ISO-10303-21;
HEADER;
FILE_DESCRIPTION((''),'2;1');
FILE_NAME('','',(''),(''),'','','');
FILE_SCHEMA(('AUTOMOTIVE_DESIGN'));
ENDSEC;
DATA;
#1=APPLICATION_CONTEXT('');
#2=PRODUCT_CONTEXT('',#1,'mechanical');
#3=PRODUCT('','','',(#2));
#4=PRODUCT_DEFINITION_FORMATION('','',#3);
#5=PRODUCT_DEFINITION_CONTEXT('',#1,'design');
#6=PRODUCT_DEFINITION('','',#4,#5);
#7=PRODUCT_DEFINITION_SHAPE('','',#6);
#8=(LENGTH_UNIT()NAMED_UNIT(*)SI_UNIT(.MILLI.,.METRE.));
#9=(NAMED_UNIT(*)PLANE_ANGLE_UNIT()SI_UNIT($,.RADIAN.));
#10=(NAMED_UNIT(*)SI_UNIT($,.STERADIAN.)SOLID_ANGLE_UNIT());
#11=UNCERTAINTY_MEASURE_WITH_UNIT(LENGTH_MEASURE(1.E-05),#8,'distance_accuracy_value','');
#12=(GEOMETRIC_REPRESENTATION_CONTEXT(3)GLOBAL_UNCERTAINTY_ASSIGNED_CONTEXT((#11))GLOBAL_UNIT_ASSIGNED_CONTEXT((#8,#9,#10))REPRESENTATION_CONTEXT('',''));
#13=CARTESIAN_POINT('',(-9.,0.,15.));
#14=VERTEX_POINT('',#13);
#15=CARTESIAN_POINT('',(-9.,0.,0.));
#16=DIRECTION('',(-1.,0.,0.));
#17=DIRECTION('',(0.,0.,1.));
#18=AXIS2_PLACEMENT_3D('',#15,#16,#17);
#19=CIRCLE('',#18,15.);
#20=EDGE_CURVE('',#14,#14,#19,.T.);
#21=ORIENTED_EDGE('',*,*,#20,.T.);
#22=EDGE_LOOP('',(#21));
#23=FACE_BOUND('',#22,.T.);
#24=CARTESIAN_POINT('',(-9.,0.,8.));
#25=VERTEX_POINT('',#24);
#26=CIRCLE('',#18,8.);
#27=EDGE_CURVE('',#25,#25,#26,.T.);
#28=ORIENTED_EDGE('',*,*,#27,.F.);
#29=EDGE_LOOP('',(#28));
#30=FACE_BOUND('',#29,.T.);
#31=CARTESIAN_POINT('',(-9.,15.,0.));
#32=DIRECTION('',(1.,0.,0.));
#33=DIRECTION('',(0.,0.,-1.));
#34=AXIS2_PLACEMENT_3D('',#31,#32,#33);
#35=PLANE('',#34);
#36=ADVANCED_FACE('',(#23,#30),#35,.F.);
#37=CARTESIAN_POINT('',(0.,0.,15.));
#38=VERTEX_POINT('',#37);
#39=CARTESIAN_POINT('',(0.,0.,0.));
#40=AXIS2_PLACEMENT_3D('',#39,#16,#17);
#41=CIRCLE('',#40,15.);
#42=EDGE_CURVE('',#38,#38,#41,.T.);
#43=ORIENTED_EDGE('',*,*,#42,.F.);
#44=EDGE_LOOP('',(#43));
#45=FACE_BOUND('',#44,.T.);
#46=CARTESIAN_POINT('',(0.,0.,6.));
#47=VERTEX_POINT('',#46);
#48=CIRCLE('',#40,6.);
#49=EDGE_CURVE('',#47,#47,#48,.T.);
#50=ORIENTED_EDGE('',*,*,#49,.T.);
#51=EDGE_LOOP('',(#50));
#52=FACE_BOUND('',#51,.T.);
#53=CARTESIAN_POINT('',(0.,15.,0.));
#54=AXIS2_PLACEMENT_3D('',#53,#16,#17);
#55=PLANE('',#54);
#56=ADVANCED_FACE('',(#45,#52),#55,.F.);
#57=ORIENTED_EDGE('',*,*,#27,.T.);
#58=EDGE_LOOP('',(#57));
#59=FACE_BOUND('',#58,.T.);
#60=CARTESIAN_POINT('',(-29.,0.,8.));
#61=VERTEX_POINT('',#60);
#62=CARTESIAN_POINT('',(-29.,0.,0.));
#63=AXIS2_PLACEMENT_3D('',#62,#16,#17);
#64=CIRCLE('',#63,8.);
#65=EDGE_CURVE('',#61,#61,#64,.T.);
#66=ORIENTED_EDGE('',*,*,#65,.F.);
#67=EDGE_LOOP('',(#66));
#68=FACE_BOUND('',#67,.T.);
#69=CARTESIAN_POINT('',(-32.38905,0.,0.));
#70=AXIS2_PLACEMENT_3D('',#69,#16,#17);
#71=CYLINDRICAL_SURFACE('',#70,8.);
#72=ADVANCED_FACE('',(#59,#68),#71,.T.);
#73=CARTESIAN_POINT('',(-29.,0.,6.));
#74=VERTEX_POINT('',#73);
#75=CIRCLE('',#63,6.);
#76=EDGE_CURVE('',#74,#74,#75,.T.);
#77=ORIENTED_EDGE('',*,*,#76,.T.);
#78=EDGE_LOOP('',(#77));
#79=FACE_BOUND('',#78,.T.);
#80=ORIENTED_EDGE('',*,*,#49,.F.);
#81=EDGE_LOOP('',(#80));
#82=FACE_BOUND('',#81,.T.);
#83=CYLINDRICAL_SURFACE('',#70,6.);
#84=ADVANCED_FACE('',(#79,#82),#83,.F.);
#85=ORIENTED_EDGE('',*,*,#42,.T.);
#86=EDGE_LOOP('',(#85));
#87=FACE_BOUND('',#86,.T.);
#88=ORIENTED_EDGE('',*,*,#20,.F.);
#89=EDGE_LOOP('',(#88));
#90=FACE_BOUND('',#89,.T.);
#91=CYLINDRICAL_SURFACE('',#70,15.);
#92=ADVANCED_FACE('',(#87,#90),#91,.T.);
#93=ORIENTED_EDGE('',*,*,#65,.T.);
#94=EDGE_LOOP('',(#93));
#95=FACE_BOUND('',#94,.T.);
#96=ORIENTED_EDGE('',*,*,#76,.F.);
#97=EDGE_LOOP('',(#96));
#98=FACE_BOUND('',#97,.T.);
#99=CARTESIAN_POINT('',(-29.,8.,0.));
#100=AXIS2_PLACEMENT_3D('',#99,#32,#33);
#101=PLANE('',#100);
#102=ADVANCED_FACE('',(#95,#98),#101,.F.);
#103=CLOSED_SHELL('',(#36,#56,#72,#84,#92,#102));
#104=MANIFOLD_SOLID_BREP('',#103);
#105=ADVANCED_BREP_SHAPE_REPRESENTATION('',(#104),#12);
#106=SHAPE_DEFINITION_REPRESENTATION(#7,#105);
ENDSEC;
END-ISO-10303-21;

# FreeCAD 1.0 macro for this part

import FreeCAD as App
import Part
import Sketcher
from FreeCAD import Vector
Q = App.Units.Quantity


def add_polygon(sketch, points):
    """Adds a closed chain of lines whose ends are joined by coincident constraints."""
    first, n = sketch.GeometryCount, len(points)
    for a, b in zip(points, points[1:] + points[:1]):
        sketch.addGeometry(Part.LineSegment(App.Vector(*a, 0), App.Vector(*b, 0)), False)
    for i in range(n):
        sketch.addConstraint(Sketcher.Constraint("Coincident", first + i, 2, first + (i + 1) % n, 1))

doc = App.newDocument("Part")
body = doc.addObject("PartDesign::Body", "Body")

sketch1 = body.newObject("Sketcher::SketchObject", "Sketch")
sketch1.AttachmentSupport = (doc.getObject("XY_Plane"), [""])
sketch1.MapMode = "FlatFace"
add_polygon(sketch1, [(0, 15), (-9, 15), (-9, 8), (-29, 8), (-29, 6), (0, 6)])
sketch1.addConstraint(Sketcher.Constraint("Horizontal", 0))
sketch1.addConstraint(Sketcher.Constraint("Vertical", 1))
sketch1.addConstraint(Sketcher.Constraint("Horizontal", 2))
sketch1.addConstraint(Sketcher.Constraint("Vertical", 3))
sketch1.addConstraint(Sketcher.Constraint("Horizontal", 4))
sketch1.addConstraint(Sketcher.Constraint("Vertical", 5))
sketch1.addConstraint(Sketcher.Constraint("PointOnObject", 4, 2, -2))
sketch1.addConstraint(Sketcher.Constraint("Equal", 0, 5))
sketch1.addConstraint(Sketcher.Constraint("DistanceX", 0, 2, 0, 1, Q("9 mm")))
sketch1.addConstraint(Sketcher.Constraint("DistanceX", 2, 2, 2, 1, Q("20 mm")))
sketch1.addConstraint(Sketcher.Constraint("DistanceY", 1, 2, 1, 1, Q("7 mm")))
sketch1.addConstraint(Sketcher.Constraint("DistanceY", -1, 1, 0, 2, Q("15 mm")))
revolution = body.newObject("PartDesign::Revolution", "Revolution")
revolution.Profile = sketch1
revolution.ReferenceAxis = (sketch1, ["H_Axis"])
revolution.Angle = 360

doc.recompute()
